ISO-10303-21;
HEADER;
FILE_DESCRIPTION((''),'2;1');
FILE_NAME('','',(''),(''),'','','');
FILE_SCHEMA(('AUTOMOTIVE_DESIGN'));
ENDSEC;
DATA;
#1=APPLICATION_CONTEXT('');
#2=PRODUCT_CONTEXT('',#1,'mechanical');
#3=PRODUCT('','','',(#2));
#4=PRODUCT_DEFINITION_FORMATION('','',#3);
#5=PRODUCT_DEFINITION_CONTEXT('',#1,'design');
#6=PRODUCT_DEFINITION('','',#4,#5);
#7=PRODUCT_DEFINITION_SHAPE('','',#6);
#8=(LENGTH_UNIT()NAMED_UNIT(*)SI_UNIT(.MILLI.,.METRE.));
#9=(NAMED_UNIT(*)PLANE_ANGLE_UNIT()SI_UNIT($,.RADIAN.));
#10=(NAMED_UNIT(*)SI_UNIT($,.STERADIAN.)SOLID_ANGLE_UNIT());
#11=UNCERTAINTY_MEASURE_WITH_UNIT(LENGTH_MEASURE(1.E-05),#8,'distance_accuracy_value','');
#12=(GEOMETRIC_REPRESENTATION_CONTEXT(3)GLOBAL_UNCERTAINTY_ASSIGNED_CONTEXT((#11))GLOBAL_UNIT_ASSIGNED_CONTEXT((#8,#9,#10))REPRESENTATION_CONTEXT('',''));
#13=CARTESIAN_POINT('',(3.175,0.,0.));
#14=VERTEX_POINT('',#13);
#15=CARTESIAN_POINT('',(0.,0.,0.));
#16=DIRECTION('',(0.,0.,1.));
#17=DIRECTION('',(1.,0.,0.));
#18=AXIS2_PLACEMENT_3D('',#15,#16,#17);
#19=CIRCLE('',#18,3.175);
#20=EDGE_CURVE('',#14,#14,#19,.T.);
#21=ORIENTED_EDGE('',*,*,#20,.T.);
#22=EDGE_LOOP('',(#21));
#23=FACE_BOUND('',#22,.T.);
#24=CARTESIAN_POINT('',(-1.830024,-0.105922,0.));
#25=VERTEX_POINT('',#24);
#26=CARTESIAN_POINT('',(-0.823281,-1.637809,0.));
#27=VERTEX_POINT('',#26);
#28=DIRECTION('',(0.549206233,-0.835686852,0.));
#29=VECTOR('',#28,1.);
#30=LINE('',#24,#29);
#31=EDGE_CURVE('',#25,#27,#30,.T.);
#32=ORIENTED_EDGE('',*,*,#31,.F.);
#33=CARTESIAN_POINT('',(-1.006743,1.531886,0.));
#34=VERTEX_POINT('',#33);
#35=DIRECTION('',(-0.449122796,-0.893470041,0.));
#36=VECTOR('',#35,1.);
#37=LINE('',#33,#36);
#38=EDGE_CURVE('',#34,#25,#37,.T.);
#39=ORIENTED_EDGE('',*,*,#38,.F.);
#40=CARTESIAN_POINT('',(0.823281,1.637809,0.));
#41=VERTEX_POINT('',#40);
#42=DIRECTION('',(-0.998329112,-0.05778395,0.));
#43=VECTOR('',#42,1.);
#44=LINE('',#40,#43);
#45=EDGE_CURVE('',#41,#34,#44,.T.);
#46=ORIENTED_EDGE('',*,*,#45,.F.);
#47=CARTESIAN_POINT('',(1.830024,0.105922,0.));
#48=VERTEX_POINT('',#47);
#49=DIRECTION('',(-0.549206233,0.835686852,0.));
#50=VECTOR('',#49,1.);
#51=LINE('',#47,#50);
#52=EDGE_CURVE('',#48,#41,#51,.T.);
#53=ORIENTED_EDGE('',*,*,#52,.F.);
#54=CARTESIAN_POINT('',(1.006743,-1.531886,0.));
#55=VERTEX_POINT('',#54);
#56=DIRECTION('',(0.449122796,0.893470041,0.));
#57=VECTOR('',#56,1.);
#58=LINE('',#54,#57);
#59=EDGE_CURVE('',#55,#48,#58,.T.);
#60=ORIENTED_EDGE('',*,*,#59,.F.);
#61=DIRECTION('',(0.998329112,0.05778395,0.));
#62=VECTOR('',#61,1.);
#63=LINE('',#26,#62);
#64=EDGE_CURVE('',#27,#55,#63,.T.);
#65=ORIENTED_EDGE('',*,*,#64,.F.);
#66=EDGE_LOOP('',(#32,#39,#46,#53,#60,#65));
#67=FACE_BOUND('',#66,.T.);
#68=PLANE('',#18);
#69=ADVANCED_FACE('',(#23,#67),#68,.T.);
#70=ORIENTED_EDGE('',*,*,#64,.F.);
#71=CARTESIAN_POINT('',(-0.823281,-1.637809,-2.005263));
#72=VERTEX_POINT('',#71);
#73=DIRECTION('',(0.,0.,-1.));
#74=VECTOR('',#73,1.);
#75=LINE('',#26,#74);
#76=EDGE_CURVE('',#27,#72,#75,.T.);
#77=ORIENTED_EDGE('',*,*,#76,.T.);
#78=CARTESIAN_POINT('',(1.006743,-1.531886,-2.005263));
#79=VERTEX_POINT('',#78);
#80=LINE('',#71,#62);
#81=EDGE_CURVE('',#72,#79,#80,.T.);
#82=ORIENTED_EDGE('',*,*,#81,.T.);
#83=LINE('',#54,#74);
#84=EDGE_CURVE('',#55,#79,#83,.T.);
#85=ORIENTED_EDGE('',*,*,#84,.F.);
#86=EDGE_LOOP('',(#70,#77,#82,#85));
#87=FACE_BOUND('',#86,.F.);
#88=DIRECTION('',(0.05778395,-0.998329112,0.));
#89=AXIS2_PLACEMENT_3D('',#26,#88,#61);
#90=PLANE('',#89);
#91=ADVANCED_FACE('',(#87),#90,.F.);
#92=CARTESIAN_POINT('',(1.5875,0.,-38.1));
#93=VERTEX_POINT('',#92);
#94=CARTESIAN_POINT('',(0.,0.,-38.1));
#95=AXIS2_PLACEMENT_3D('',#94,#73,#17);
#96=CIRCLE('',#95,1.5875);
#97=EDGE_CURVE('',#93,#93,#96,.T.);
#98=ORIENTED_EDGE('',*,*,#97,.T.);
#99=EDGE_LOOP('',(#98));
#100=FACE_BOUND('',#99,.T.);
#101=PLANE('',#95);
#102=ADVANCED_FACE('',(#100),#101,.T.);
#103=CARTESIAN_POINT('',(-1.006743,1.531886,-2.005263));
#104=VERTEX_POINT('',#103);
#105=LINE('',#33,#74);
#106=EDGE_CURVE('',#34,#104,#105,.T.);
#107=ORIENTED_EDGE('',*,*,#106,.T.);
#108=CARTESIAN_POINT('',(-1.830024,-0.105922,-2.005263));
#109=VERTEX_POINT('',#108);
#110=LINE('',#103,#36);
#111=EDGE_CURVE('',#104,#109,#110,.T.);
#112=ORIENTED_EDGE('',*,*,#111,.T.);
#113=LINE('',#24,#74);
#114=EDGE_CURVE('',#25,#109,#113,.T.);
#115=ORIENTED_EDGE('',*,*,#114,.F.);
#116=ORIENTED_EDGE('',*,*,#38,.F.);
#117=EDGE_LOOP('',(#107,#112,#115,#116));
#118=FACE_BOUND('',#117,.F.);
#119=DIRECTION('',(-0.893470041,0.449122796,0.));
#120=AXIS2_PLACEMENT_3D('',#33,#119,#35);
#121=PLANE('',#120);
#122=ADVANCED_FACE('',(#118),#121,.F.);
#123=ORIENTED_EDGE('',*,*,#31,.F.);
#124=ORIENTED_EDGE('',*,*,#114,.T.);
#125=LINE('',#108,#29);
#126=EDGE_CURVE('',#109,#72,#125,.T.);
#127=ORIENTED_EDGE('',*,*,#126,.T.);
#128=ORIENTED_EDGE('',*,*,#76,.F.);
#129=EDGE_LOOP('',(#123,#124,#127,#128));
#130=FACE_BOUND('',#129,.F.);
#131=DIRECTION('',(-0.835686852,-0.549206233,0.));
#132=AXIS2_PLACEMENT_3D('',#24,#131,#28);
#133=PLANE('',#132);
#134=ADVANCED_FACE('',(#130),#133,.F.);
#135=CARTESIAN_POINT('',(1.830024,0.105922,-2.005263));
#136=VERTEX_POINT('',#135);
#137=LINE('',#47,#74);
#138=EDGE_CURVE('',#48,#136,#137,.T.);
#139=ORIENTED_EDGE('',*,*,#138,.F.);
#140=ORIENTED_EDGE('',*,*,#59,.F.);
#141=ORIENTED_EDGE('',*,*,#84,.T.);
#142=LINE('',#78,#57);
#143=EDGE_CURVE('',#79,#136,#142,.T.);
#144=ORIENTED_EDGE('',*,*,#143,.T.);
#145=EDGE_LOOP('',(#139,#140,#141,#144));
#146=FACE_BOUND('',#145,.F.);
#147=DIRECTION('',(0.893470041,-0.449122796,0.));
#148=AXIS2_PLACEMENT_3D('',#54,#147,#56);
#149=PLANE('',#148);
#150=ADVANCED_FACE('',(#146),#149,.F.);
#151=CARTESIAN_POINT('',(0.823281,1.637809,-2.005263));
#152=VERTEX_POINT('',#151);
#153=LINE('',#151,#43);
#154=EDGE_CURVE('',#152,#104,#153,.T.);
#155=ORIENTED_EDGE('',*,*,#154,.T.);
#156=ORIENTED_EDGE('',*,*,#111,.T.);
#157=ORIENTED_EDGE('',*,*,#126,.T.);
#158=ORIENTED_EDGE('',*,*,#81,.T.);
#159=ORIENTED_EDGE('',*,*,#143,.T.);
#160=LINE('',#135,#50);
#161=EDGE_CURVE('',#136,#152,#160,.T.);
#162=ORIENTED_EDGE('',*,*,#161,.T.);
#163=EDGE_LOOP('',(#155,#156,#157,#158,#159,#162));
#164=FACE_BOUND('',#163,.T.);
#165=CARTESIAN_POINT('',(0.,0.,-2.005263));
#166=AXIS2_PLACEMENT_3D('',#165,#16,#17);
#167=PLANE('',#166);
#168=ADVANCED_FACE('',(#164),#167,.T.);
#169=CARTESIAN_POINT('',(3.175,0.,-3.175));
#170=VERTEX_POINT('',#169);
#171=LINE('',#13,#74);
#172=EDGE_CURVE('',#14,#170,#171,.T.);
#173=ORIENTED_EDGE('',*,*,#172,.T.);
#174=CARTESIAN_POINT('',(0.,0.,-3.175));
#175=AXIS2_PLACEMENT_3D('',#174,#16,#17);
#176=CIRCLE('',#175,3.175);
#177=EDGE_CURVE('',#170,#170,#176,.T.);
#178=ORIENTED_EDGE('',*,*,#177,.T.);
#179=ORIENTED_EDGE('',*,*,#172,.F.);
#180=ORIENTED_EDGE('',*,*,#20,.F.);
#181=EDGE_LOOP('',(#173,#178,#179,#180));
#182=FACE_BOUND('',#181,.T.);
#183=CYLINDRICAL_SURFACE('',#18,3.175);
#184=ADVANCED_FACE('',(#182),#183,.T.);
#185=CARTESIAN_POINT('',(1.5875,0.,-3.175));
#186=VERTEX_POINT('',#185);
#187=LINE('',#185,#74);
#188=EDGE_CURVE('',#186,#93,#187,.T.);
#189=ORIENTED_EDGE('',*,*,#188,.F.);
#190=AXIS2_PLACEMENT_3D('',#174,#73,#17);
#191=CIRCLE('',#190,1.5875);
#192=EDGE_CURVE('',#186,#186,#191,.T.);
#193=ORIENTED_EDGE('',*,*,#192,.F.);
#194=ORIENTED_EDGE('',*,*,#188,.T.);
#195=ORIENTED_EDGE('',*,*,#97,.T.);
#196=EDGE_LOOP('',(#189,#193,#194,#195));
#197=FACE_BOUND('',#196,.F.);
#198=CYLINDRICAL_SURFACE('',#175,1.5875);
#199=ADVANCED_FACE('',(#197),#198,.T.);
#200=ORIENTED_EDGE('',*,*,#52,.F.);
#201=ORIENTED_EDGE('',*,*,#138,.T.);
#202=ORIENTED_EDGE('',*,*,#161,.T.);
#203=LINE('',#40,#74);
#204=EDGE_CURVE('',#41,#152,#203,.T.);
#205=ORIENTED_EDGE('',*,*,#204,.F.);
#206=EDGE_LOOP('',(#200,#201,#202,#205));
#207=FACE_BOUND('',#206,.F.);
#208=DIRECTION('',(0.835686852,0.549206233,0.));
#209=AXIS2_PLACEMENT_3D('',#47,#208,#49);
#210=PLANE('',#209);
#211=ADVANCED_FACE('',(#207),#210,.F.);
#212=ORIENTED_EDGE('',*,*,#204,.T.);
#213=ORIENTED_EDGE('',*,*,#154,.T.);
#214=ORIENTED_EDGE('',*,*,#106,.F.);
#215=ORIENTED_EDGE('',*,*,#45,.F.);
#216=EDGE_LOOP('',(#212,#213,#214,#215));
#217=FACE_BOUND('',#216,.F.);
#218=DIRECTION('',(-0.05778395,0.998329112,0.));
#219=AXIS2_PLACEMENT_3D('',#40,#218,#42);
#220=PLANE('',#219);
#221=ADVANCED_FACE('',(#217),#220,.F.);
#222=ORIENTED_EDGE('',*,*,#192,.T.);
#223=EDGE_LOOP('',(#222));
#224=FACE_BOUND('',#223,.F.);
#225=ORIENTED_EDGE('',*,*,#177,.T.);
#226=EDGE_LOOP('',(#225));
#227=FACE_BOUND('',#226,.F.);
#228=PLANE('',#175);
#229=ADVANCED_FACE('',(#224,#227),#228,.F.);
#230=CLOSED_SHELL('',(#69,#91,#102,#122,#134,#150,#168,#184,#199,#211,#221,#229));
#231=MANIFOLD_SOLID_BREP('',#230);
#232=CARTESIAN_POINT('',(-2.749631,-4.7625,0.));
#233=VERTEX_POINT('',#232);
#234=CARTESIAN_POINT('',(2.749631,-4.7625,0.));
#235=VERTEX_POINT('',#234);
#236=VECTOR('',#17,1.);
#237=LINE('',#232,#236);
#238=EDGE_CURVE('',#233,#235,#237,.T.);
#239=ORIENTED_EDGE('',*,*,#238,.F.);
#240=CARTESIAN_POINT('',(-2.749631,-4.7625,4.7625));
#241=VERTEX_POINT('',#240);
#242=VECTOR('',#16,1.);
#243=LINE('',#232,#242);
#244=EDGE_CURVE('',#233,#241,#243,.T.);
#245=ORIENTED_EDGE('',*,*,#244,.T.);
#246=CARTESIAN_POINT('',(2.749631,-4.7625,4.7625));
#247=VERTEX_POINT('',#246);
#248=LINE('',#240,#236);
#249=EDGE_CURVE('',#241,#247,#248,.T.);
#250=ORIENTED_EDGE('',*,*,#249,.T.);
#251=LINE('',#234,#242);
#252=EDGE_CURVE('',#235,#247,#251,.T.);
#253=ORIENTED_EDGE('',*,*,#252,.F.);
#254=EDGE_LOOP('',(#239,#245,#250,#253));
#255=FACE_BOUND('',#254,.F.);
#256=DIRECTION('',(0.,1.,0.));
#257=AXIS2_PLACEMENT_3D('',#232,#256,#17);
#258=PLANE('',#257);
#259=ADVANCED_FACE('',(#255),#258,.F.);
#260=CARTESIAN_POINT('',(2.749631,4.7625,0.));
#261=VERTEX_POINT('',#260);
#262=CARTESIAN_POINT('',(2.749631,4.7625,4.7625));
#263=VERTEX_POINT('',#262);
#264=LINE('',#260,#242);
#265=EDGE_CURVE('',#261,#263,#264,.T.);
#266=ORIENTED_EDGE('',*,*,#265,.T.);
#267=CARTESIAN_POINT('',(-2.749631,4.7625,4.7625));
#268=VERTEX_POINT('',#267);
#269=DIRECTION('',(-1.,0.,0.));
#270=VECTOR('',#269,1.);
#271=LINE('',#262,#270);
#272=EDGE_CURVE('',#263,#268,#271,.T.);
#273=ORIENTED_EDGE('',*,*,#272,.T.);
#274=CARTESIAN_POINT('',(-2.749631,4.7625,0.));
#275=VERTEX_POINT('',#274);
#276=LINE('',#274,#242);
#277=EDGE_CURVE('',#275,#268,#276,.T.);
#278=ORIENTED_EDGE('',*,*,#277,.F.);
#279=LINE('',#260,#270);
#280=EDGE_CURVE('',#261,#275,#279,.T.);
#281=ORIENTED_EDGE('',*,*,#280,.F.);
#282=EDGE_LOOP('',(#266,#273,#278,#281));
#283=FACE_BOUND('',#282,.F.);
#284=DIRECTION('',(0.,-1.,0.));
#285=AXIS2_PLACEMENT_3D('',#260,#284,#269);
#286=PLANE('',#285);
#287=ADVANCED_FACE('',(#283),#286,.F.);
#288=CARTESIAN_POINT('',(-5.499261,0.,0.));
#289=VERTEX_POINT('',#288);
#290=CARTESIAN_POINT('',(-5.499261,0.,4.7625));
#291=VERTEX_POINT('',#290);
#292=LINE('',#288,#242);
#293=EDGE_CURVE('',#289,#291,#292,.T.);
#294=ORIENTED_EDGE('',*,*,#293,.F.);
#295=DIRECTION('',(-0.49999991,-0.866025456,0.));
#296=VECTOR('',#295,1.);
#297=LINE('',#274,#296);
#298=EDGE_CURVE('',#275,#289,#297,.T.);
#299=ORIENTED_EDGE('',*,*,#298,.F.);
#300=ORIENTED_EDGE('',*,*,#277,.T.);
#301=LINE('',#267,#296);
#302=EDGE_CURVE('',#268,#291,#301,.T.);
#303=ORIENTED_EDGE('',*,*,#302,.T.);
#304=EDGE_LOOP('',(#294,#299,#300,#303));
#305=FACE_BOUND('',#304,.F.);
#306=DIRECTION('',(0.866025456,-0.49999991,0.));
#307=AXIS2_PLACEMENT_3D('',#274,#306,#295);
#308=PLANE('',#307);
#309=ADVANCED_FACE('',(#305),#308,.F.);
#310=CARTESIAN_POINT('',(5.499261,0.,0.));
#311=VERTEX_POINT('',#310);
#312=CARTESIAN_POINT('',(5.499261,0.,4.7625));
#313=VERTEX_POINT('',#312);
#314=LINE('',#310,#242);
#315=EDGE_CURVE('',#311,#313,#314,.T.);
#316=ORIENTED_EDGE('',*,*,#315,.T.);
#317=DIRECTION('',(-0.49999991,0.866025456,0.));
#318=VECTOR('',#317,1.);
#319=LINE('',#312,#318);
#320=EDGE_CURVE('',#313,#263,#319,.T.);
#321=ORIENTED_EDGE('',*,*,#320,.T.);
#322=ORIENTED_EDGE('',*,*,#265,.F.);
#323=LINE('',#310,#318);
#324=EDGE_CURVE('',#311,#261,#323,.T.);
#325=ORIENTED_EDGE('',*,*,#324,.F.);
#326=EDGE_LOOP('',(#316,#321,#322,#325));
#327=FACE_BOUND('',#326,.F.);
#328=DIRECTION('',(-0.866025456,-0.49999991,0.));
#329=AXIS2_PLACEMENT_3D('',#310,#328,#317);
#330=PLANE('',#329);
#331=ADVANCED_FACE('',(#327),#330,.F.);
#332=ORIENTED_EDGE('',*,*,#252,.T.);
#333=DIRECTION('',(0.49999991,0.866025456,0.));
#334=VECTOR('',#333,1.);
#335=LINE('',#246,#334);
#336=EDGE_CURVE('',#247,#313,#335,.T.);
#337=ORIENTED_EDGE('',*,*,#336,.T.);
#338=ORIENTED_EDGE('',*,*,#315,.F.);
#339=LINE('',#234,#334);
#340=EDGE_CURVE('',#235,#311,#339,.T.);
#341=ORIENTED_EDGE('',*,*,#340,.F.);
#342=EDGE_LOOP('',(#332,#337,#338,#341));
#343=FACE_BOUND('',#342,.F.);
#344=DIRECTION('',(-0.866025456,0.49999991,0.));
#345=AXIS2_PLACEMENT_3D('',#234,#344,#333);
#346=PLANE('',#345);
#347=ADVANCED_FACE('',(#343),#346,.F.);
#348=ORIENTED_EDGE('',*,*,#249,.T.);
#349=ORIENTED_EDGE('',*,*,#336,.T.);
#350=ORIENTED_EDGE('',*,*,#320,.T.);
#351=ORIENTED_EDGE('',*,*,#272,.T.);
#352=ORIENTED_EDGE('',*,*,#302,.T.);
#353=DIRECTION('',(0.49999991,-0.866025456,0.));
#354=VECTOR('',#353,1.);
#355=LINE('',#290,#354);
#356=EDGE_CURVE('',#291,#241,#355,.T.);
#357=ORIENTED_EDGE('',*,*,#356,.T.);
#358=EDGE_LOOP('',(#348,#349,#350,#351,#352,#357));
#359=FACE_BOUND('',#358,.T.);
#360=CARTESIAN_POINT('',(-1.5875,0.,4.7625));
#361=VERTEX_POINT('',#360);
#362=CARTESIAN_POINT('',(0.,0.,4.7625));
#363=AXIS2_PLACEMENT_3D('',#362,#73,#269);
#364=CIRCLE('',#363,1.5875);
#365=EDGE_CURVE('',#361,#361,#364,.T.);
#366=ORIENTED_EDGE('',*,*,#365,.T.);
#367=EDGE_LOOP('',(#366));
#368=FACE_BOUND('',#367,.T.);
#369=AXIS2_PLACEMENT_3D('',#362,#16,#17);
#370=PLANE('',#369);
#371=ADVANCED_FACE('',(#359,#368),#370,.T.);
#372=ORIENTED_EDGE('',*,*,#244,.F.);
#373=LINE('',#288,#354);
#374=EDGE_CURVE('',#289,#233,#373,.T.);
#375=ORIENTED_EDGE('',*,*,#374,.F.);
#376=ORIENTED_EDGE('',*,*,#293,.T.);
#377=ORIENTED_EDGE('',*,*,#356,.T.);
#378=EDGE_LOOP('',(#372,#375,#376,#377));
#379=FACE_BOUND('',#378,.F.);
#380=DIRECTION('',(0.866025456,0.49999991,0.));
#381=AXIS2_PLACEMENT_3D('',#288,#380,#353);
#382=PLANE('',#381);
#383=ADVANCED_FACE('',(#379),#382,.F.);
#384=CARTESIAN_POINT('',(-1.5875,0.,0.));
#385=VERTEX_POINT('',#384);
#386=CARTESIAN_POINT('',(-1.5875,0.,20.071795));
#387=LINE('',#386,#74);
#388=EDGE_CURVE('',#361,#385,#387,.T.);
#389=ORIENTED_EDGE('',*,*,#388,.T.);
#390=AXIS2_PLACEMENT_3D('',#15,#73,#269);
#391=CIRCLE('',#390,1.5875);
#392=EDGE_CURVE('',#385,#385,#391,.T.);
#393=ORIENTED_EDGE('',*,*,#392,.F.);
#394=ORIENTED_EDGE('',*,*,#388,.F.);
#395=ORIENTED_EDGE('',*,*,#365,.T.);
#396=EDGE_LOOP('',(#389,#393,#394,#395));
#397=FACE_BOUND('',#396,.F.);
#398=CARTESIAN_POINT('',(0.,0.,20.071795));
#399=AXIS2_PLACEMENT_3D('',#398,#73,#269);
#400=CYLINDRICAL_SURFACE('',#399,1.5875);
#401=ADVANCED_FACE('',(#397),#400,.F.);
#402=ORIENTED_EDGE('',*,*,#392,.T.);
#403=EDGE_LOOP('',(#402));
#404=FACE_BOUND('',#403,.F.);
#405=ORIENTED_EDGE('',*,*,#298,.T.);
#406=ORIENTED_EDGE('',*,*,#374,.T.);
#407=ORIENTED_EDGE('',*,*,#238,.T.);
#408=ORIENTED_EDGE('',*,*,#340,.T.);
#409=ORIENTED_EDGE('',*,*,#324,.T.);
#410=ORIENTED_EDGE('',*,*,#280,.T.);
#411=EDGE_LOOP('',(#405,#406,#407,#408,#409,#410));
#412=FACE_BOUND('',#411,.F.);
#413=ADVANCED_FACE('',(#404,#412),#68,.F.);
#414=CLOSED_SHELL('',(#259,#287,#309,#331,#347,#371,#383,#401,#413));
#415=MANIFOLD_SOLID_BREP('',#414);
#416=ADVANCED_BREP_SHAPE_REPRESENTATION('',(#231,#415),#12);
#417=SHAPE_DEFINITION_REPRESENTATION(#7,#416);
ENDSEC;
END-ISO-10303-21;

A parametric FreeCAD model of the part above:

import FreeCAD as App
import Part
import Sketcher
from FreeCAD import Vector
Q = App.Units.Quantity

doc = App.newDocument("Part")
body = doc.addObject("PartDesign::Body", "Body")

# Sketch on XY plane
sketch1 = body.newObject("Sketcher::SketchObject", "Sketch")
sketch1.AttachmentSupport = (doc.getObject("XY_Plane"), [""])
sketch1.MapMode = "FlatFace"
sketch1.addGeometry(Part.LineSegment(Vector(-3, -5, 0), Vector(3, -5, 0)), False)
sketch1.addGeometry(Part.LineSegment(Vector(3, -5, 0), Vector(5, 0, 0)), False)
sketch1.addGeometry(Part.LineSegment(Vector(5, 0, 0), Vector(3, 5, 0)), False)
sketch1.addGeometry(Part.LineSegment(Vector(3, 5, 0), Vector(-3, 5, 0)), False)
sketch1.addGeometry(Part.LineSegment(Vector(-3, 5, 0), Vector(-5, 0, 0)), False)
sketch1.addGeometry(Part.LineSegment(Vector(-5, 0, 0), Vector(-3, -5, 0)), False)
sketch1.addConstraint(Sketcher.Constraint("Coincident", 0, 2, 1, 1))
sketch1.addConstraint(Sketcher.Constraint("Coincident", 1, 2, 2, 1))
sketch1.addConstraint(Sketcher.Constraint("Coincident", 2, 2, 3, 1))
sketch1.addConstraint(Sketcher.Constraint("Coincident", 3, 2, 4, 1))
sketch1.addConstraint(Sketcher.Constraint("Coincident", 4, 2, 5, 1))
sketch1.addConstraint(Sketcher.Constraint("Coincident", 5, 2, 0, 1))
sketch1.addConstraint(Sketcher.Constraint("Horizontal", 0))
sketch1.addConstraint(Sketcher.Constraint("Horizontal", 3))
sketch1.addConstraint(Sketcher.Constraint("Symmetric", 0, 2, 3, 2, -1, 1))
sketch1.addConstraint(Sketcher.Constraint("Symmetric", 1, 2, 4, 2, -1, 1))
sketch1.addConstraint(Sketcher.Constraint("PointOnObject", 1, 2, -1))
sketch1.addConstraint(Sketcher.Constraint("Parallel", 2, 5))
sketch1.addConstraint(Sketcher.Constraint("Vertical", 0, 2, 2, 2))
sketch1.addConstraint(Sketcher.Constraint("Angle", 1, Q("60.000006 deg")))
sketch1.addConstraint(Sketcher.Constraint("DistanceY", 0, 2, -1, 1, Q("0.1875 in")))
sketch1.addConstraint(Sketcher.Constraint("DistanceX", 0, 1, 0, 2, Q("5.499262 mm")))
pad1 = body.newObject("PartDesign::Pad", "Pad")
pad1.Profile = sketch1
pad1.Length = Q("0.1875 in")

# Sketch on XY plane
sketch2 = body.newObject("Sketcher::SketchObject", "Sketch001")
sketch2.AttachmentSupport = (doc.getObject("XY_Plane"), [""])
sketch2.MapMode = "FlatFace"
sketch2.AttachmentOffset = App.Placement(Vector(0, 0, 0.1875 * 25.4), App.Rotation())
sketch2.addGeometry(Part.Circle(Vector(0, 0, 0), Vector(0, 0, 1), 1.6), False)
sketch2.addConstraint(Sketcher.Constraint("Coincident", 0, 3, -1, 1))
sketch2.addConstraint(Sketcher.Constraint("Diameter", 0, Q("0.125 in")))
doc.recompute()
hole = body.newObject("PartDesign::Hole", "Hole")
hole.Profile = sketch2
hole.ThreadType = "None"
hole.Diameter = Q("0.125 in")
hole.DepthType = "ThroughAll"
body2 = doc.addObject("PartDesign::Body", "Body001")

# Sketch on XY plane
sketch3 = body2.newObject("Sketcher::SketchObject", "Sketch002")
sketch3.AttachmentSupport = (doc.getObject("XY_Plane001"), [""])
sketch3.MapMode = "FlatFace"
sketch3.addGeometry(Part.Circle(Vector(0, 0, 0), Vector(0, 0, 1), 3.2), False)
sketch3.addConstraint(Sketcher.Constraint("Coincident", 0, 3, -1, 1))
sketch3.addConstraint(Sketcher.Constraint("Diameter", 0, Q("0.25 in")))
pad2 = body2.newObject("PartDesign::Pad", "Pad001")
pad2.Profile = sketch3
pad2.Length = Q("0.125 in")
pad2.Reversed = True

# Sketch on XY plane
sketch4 = body2.newObject("Sketcher::SketchObject", "Sketch003")
sketch4.AttachmentSupport = (doc.getObject("XY_Plane001"), [""])
sketch4.MapMode = "FlatFace"
sketch4.AttachmentOffset = App.Placement(Vector(0, 0, -0.125 * 25.4), App.Rotation())
sketch4.addGeometry(Part.Circle(Vector(0, 0, 0), Vector(0, 0, 1), 1.6), False)
sketch4.addConstraint(Sketcher.Constraint("Coincident", 0, 3, -1, 1))
sketch4.addConstraint(Sketcher.Constraint("Diameter", 0, Q("0.125 in")))
pad3 = body2.newObject("PartDesign::Pad", "Pad002")
pad3.Profile = sketch4
pad3.Length = Q("1.375 in")
pad3.Reversed = True

# Sketch on XY plane
sketch5 = body2.newObject("Sketcher::SketchObject", "Sketch004")
sketch5.AttachmentSupport = (doc.getObject("XY_Plane001"), [""])
sketch5.MapMode = "FlatFace"
sketch5.addGeometry(Part.LineSegment(Vector(1.8, 0.1, 0), Vector(0.8, 1.6, 0)), False)
sketch5.addGeometry(Part.LineSegment(Vector(0.8, 1.6, 0), Vector(-1, 1.5, 0)), False)
sketch5.addGeometry(Part.LineSegment(Vector(-1, 1.5, 0), Vector(-1.8, -0.1, 0)), False)
sketch5.addGeometry(Part.LineSegment(Vector(-1.8, -0.1, 0), Vector(-0.8, -1.6, 0)), False)
sketch5.addGeometry(Part.LineSegment(Vector(-0.8, -1.6, 0), Vector(1, -1.5, 0)), False)
sketch5.addGeometry(Part.LineSegment(Vector(1, -1.5, 0), Vector(1.8, 0.1, 0)), False)
sketch5.addConstraint(Sketcher.Constraint("Coincident", 0, 2, 1, 1))
sketch5.addConstraint(Sketcher.Constraint("Coincident", 1, 2, 2, 1))
sketch5.addConstraint(Sketcher.Constraint("Coincident", 2, 2, 3, 1))
sketch5.addConstraint(Sketcher.Constraint("Coincident", 3, 2, 4, 1))
sketch5.addConstraint(Sketcher.Constraint("Coincident", 4, 2, 5, 1))
sketch5.addConstraint(Sketcher.Constraint("Coincident", 5, 2, 0, 1))
sketch5.addConstraint(Sketcher.Constraint("Symmetric", 0, 2, 3, 2, -1, 1))
sketch5.addConstraint(Sketcher.Constraint("Symmetric", 1, 2, 4, 2, -1, 1))
sketch5.addConstraint(Sketcher.Constraint("Symmetric", 2, 2, 5, 2, -1, 1))
sketch5.addConstraint(Sketcher.Constraint("Equal", 0, 1))
sketch5.addConstraint(Sketcher.Constraint("Equal", 1, 2))
sketch5.addConstraint(Sketcher.Constraint("DistanceX", -1, 1, 0, 2, Q("0.823281 mm")))
sketch5.addConstraint(Sketcher.Constraint("DistanceY", -1, 1, 0, 2, Q("1.637809 mm")))
sketch5.addConstraint(Sketcher.Constraint("DistanceX", 2, 2, 1, 2, Q("0.823281 mm")))
sketch5.addConstraint(Sketcher.Constraint("DistanceY", 2, 2, 1, 2, Q("1.637808 mm")))
pocket1 = body2.newObject("PartDesign::Pocket", "Pocket")
pocket1.Profile = sketch5
pocket1.Length = 2.005263

doc.recompute()
